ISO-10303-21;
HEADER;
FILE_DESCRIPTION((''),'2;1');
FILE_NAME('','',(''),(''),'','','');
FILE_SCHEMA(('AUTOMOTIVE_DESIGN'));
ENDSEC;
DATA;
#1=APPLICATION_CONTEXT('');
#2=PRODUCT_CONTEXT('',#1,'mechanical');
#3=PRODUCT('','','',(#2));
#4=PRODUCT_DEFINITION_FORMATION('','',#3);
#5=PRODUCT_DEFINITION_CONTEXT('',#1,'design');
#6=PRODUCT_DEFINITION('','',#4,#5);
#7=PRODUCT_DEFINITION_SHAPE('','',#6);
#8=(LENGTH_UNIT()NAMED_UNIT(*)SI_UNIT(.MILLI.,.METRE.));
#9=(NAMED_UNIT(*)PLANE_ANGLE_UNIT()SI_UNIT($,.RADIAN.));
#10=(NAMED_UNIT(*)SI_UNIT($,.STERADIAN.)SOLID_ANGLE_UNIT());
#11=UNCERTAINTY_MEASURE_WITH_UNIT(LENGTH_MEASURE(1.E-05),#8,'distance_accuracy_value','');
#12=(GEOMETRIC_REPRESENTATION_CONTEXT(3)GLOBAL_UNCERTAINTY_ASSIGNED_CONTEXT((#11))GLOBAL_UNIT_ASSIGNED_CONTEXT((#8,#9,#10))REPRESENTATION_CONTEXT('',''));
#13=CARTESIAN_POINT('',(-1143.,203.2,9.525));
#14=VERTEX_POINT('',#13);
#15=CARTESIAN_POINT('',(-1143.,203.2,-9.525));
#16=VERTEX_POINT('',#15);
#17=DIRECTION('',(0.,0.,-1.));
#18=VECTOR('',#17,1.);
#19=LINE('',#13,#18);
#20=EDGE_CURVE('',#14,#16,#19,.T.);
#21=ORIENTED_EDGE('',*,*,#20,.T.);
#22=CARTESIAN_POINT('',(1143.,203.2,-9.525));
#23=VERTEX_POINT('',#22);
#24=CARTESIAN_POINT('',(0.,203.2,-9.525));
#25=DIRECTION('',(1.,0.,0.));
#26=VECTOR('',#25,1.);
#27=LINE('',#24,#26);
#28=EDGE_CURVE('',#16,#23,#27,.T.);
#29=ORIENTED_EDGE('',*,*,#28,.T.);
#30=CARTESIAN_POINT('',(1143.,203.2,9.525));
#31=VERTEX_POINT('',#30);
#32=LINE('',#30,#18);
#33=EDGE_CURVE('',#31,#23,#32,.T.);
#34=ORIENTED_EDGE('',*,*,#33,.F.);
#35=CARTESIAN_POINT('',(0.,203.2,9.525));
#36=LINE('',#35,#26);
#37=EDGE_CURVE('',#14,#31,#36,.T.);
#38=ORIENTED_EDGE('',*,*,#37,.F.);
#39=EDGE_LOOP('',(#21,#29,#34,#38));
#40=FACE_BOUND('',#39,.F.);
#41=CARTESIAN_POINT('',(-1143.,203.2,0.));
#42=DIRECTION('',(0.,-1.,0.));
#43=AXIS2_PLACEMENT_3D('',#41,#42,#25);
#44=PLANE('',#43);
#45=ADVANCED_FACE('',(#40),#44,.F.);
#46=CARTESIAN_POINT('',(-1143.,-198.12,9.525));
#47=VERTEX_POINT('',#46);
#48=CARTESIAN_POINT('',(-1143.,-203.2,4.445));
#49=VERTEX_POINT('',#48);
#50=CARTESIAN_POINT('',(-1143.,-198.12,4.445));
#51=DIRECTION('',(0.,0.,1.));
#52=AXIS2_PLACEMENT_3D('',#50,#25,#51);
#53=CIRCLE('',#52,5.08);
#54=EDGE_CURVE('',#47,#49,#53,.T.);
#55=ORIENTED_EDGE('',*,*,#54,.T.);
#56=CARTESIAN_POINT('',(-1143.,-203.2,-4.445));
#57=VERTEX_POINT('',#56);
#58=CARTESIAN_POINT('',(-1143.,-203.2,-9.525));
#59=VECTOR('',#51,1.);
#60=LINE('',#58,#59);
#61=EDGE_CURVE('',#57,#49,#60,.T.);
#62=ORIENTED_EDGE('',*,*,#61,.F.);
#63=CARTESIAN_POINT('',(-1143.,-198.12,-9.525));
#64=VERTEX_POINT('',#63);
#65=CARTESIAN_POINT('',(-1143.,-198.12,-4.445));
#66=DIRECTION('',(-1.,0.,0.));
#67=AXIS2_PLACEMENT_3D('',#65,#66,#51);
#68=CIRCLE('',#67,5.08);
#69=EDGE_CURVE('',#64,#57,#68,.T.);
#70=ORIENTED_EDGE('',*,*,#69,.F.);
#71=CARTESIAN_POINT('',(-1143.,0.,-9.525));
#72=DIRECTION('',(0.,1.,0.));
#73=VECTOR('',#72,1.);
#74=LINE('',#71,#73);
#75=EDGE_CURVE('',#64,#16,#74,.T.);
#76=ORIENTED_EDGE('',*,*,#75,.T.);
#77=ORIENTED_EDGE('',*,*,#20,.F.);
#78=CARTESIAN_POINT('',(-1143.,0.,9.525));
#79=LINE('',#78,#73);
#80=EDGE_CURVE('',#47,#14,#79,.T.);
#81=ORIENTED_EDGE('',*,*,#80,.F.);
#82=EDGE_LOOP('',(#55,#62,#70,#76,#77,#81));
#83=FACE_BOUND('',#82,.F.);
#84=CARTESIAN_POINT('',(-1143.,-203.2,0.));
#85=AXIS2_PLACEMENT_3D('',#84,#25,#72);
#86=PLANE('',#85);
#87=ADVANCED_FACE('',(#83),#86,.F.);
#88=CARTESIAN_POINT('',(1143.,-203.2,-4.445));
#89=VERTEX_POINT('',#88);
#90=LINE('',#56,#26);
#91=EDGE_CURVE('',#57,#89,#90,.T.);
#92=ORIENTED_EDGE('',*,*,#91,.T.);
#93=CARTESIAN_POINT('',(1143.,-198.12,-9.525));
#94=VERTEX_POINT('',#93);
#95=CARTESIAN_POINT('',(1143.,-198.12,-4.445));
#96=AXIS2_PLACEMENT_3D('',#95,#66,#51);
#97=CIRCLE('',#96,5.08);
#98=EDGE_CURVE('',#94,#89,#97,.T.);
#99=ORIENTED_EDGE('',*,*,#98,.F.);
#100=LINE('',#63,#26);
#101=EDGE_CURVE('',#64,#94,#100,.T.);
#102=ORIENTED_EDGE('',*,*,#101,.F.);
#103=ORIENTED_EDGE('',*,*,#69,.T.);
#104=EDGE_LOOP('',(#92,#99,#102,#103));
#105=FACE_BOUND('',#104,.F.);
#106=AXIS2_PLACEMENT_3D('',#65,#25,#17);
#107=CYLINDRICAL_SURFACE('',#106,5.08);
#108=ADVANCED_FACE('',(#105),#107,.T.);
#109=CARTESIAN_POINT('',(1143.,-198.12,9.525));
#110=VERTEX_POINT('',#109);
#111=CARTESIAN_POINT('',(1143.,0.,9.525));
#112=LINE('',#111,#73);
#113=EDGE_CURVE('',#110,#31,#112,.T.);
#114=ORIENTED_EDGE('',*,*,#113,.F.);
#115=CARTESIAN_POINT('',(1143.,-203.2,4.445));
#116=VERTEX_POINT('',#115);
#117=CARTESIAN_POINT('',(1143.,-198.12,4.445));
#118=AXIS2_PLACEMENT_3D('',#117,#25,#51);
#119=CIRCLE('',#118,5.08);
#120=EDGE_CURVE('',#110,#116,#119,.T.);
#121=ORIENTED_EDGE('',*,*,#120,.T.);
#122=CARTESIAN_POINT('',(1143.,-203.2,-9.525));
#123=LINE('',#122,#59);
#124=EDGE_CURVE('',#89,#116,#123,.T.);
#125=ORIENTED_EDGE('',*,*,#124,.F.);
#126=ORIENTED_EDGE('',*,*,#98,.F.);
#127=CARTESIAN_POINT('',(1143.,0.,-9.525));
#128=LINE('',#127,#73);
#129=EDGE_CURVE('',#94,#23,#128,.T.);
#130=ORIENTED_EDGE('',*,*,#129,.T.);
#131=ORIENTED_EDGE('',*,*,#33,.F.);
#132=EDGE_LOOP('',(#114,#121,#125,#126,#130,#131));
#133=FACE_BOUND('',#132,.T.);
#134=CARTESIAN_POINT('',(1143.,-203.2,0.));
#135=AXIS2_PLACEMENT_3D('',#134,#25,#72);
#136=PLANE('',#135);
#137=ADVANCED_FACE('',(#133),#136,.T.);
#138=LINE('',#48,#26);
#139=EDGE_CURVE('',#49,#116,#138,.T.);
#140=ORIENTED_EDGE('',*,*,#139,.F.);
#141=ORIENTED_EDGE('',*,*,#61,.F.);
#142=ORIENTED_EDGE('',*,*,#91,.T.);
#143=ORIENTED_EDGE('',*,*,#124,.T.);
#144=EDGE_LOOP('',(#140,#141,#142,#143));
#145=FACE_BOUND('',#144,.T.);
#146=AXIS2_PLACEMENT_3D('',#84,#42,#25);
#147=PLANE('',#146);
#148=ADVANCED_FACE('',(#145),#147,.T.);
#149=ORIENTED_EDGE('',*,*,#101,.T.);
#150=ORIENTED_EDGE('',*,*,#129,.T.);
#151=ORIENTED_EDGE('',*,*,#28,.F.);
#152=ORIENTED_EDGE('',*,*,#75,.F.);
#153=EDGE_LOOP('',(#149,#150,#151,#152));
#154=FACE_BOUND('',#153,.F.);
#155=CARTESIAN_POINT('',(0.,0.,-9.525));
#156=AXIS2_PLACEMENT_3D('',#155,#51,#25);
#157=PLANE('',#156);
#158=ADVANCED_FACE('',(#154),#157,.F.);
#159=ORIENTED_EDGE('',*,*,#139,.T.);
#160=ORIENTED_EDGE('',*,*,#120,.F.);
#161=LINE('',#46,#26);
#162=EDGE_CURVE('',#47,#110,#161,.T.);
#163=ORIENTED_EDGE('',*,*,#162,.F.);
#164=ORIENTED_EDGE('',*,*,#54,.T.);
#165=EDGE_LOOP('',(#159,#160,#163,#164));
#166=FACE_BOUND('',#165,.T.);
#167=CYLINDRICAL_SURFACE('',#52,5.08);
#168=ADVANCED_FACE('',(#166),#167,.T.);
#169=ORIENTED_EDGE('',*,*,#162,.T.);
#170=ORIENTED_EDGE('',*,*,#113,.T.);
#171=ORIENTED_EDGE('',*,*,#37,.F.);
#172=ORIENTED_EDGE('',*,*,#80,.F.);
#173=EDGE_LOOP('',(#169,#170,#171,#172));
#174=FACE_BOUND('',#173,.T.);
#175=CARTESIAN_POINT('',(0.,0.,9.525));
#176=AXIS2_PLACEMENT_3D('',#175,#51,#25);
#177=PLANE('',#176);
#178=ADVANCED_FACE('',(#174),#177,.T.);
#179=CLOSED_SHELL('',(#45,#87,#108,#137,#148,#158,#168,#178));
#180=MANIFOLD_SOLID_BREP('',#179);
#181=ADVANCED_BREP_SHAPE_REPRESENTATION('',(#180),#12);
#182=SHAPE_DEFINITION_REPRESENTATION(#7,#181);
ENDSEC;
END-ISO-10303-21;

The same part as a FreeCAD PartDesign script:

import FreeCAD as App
import Part
import Sketcher
from FreeCAD import Vector
Q = App.Units.Quantity


def edges_at(feature, points):
    """Names of the edges that pass closest to the given points."""
    edges = feature.Shape.Edges
    near = lambda p: min(range(len(edges)), key=lambda i: edges[i].distToShape(Part.Vertex(*p))[0])
    return sorted({f"Edge{near(p) + 1}" for p in points})

doc = App.newDocument("Part")
params = doc.addObject("Spreadsheet::Sheet", "Params")
for row, (alias, value) in enumerate([
    ("sketch1_width", "90 in"),
    ("sketch1_height", "16 in"),
    ("pad1_length", "0.375 in"),
    ("pad1_length2", "0.375 in"),
    ("fillet_radius", "0.2 in"),
], start=1):
    params.set(f"A{row}", alias)
    params.set(f"B{row}", "=" + value)
    params.setAlias(f"B{row}", alias)

body = doc.addObject("PartDesign::Body", "Body")

sketch1 = body.newObject("Sketcher::SketchObject", "Sketch")
sketch1.AttachmentSupport = (doc.getObject("XY_Plane"), [""])
sketch1.MapMode = "FlatFace"
sketch1.addGeometry(Part.LineSegment(Vector(-1143, 203, 0), Vector(-1143, -203, 0)), False)
sketch1.addGeometry(Part.LineSegment(Vector(-1143, -203, 0), Vector(1143, -203, 0)), False)
sketch1.addGeometry(Part.LineSegment(Vector(1143, -203, 0), Vector(1143, 203, 0)), False)
sketch1.addGeometry(Part.LineSegment(Vector(1143, 203, 0), Vector(-1143, 203, 0)), False)
sketch1.addConstraint(Sketcher.Constraint("Coincident", 0, 2, 1, 1))
sketch1.addConstraint(Sketcher.Constraint("Coincident", 1, 2, 2, 1))
sketch1.addConstraint(Sketcher.Constraint("Coincident", 2, 2, 3, 1))
sketch1.addConstraint(Sketcher.Constraint("Coincident", 3, 2, 0, 1))
sketch1.addConstraint(Sketcher.Constraint("Vertical", 0))
sketch1.addConstraint(Sketcher.Constraint("Horizontal", 1))
sketch1.addConstraint(Sketcher.Constraint("Vertical", 2))
sketch1.addConstraint(Sketcher.Constraint("Horizontal", 3))
sketch1.addConstraint(Sketcher.Constraint("Symmetric", 0, 2, 2, 2, -1, 1))
sketch1.addConstraint(Sketcher.Constraint("DistanceX", 1, 1, 1, 2, Q("90 in")))
sketch1.addConstraint(Sketcher.Constraint("DistanceY", 0, 2, 0, 1, Q("16 in")))
sketch1.setExpression("Constraints[9]", "Params.sketch1_width")
sketch1.setExpression("Constraints[10]", "Params.sketch1_height")
pad1 = body.newObject("PartDesign::Pad", "Pad")
pad1.Profile = sketch1
pad1.Type = "TwoLengths"
pad1.setExpression("Length", "Params.pad1_length")
pad1.setExpression("Length2", "Params.pad1_length2")
doc.recompute()

fillet = body.newObject("PartDesign::Fillet", "Fillet")
fillet.Base = (pad1, edges_at(pad1, [(0, -203.2, 9.525), (0, -203.2, -9.525)]))
fillet.setExpression("Radius", "Params.fillet_radius")

doc.recompute()
